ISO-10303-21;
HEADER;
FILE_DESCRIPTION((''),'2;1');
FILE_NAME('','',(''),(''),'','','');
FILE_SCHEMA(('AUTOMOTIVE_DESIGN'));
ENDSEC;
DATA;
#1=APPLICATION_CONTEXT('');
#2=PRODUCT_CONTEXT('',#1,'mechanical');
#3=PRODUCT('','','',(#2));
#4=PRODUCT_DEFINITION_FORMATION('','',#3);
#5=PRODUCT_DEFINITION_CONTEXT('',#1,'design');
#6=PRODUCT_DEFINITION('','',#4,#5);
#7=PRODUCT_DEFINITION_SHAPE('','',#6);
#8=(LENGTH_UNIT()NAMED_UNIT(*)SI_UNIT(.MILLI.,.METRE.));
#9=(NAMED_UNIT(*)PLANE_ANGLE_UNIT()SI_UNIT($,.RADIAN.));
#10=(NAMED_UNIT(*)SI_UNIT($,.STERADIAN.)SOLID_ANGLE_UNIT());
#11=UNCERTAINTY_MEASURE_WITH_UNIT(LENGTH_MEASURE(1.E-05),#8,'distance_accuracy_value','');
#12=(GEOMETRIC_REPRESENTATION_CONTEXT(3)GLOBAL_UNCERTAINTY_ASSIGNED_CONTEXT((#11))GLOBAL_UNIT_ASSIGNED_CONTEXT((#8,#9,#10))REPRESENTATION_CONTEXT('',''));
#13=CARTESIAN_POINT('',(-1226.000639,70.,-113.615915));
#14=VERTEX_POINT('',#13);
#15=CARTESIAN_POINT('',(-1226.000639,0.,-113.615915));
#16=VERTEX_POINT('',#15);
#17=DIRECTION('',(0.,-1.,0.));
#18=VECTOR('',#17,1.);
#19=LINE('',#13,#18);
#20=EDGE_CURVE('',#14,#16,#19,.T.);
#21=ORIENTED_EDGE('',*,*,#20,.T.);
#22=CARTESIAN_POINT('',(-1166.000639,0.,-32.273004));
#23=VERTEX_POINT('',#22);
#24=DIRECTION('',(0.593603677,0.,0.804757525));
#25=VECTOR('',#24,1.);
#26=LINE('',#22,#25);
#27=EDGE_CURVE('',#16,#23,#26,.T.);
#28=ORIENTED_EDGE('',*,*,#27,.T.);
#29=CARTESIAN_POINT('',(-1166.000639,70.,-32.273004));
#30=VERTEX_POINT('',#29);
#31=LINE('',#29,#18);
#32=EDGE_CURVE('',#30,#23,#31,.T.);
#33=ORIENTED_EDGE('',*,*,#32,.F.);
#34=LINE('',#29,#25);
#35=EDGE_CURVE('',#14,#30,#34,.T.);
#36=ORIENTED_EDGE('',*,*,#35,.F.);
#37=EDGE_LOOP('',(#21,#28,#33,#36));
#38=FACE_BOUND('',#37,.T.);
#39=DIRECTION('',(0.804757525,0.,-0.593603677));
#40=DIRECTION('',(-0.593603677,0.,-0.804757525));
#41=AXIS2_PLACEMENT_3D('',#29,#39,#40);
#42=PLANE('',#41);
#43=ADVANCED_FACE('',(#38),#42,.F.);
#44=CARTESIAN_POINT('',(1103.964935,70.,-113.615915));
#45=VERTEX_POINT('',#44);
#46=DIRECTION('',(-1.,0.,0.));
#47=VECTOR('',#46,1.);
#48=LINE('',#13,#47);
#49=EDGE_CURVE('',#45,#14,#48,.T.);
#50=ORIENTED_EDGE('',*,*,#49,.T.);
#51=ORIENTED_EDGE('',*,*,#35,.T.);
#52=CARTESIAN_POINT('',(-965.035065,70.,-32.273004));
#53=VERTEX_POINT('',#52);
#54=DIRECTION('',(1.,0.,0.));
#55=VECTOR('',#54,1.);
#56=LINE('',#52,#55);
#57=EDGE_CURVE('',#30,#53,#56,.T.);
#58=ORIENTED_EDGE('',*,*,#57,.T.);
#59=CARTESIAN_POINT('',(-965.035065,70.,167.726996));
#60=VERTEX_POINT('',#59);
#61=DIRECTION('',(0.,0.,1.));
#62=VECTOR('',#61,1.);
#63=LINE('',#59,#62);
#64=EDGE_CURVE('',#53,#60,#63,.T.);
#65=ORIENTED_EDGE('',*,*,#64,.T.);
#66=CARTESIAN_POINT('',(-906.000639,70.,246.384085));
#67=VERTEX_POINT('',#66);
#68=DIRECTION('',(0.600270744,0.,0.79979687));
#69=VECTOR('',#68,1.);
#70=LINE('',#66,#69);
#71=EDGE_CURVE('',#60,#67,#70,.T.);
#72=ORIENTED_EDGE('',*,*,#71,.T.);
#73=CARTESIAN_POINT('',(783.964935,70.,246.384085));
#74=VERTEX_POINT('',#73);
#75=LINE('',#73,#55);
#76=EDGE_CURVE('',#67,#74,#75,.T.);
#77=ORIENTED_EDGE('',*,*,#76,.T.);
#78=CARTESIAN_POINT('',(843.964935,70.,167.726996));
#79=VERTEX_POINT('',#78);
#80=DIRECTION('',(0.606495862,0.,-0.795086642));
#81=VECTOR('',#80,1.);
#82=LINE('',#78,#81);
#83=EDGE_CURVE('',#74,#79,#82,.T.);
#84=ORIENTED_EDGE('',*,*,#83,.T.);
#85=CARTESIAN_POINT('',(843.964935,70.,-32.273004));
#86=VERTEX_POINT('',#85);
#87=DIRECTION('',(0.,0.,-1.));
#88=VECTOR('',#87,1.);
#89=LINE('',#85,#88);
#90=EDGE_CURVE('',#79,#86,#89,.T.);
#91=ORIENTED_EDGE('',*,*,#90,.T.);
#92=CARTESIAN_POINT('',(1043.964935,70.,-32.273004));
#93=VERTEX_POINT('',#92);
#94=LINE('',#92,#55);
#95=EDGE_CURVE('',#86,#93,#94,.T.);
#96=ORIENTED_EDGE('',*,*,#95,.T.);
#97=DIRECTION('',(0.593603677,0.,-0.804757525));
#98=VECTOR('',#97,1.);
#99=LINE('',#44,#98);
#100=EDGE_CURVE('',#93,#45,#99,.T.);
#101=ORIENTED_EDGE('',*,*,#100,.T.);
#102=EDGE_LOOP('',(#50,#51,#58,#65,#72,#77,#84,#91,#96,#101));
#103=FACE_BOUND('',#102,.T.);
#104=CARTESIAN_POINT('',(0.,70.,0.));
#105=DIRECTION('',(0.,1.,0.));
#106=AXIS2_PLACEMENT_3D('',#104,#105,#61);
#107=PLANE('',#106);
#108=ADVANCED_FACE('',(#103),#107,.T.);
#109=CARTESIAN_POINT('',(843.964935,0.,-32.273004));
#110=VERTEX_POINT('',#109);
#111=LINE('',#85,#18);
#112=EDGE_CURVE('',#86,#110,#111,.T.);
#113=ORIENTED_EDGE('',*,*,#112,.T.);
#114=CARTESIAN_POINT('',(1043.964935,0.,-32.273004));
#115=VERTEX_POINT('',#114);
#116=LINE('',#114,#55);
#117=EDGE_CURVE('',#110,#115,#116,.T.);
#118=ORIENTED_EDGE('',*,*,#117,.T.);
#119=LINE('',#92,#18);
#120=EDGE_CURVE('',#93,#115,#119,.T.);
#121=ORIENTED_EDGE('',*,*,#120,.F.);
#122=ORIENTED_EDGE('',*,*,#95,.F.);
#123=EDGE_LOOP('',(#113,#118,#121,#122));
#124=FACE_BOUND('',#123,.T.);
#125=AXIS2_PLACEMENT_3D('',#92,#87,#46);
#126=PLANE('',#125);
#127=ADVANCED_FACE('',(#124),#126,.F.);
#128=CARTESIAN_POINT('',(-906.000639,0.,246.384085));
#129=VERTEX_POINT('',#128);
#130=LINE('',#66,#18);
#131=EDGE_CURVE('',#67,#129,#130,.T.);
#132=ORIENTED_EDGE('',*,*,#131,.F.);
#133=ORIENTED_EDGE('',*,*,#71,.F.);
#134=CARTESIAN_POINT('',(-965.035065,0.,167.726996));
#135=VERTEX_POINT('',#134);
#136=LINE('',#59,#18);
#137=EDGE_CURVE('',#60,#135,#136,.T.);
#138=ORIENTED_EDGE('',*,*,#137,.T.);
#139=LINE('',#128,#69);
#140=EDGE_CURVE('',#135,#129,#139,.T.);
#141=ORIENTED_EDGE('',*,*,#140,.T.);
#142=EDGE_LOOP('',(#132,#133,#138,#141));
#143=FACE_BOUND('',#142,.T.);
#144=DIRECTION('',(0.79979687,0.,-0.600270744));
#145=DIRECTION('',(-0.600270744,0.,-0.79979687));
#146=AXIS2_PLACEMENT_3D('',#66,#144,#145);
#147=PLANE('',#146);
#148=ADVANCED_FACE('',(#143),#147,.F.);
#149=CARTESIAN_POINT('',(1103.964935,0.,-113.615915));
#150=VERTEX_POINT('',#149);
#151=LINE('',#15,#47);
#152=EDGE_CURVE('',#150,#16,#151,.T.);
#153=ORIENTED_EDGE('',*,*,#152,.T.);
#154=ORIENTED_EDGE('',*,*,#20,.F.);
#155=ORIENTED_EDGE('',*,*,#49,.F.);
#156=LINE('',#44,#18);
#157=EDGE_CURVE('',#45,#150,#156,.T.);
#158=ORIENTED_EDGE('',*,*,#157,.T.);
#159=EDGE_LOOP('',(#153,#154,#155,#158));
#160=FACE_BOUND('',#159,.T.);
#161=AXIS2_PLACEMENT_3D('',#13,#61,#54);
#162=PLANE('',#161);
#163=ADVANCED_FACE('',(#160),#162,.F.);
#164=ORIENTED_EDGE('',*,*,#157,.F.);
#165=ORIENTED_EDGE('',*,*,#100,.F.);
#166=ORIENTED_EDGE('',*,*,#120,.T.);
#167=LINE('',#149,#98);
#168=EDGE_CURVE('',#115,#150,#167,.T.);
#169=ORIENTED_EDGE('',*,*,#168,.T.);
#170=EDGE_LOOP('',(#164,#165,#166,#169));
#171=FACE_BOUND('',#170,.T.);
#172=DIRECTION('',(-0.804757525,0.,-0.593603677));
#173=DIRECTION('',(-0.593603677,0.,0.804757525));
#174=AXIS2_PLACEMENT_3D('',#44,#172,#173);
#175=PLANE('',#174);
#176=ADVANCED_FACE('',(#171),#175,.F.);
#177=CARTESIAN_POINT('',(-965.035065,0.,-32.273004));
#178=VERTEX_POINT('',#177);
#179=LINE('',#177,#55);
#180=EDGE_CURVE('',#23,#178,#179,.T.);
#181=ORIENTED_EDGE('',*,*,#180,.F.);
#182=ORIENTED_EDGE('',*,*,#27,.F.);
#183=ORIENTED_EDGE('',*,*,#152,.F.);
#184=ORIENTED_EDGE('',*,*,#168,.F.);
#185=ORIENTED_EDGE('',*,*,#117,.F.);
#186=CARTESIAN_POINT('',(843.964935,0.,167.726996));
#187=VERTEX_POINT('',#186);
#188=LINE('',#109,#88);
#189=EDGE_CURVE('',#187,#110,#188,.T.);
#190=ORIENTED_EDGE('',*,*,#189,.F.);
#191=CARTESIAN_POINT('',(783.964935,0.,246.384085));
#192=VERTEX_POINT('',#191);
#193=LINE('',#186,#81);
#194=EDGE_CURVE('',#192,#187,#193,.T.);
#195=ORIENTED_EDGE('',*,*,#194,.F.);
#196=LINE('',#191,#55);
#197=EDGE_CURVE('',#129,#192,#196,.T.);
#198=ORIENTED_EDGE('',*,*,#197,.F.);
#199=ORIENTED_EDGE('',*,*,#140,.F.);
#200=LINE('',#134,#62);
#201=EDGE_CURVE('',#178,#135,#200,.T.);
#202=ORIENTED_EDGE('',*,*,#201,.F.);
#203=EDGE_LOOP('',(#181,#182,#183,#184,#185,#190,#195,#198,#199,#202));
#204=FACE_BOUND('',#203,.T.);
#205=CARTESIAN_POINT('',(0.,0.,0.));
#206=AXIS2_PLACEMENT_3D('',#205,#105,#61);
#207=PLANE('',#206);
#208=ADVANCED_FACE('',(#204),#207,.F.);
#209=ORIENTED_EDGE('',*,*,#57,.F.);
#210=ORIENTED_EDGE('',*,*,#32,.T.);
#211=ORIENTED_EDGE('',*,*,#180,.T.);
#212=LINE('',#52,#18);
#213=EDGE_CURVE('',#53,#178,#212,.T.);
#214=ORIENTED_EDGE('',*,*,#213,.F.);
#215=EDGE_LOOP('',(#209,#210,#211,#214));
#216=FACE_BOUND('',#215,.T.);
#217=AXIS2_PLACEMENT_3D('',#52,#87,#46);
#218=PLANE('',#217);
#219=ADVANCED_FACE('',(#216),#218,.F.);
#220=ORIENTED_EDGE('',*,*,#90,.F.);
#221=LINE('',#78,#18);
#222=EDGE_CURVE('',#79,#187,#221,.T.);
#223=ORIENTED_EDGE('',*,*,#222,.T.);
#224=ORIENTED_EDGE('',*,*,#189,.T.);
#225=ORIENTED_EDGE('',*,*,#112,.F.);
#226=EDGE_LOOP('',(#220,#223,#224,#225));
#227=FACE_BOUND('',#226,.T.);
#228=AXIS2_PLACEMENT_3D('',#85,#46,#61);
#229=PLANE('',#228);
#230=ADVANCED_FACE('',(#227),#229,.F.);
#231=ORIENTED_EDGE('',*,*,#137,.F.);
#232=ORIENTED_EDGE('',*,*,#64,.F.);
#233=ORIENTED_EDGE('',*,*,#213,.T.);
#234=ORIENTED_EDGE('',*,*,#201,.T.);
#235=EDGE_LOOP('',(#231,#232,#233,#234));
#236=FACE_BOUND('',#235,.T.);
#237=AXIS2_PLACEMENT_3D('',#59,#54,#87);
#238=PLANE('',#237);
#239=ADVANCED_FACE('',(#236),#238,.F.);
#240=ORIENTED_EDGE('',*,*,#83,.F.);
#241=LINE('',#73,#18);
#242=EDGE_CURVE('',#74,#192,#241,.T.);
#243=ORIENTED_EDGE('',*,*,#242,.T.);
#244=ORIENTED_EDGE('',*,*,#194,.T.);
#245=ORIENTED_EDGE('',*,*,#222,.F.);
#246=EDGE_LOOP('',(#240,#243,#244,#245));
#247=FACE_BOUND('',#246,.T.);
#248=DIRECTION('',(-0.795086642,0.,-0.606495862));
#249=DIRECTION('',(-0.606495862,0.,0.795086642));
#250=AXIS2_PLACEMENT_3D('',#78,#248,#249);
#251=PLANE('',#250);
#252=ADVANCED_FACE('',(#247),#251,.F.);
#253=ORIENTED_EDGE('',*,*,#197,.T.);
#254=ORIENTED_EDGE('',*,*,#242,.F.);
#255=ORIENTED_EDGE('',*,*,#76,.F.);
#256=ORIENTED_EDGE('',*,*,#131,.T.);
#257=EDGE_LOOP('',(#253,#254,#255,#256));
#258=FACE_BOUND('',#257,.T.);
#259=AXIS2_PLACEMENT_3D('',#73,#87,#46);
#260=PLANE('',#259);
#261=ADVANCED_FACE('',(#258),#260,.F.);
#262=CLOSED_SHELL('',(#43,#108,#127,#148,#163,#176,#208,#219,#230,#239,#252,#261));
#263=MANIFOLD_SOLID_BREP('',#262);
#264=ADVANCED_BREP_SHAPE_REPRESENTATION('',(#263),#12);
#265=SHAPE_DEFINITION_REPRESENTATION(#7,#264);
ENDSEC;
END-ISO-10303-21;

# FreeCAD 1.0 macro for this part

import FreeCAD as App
import Part
import Sketcher
Q = App.Units.Quantity

doc = App.newDocument("Part")
body = doc.addObject("PartDesign::Body", "Body")

# Sketch on XZ plane
sketch1 = body.newObject("Sketcher::SketchObject", "Sketch")
sketch1.AttachmentSupport = (doc.getObject("XZ_Plane"), [""])
sketch1.MapMode = "FlatFace"
sketch1.addGeometry(Part.LineSegment(App.Vector(1104, -114, 0), App.Vector(-1226, -114, 0)), False)
sketch1.addGeometry(Part.LineSegment(App.Vector(-1226, -114, 0), App.Vector(-1166, -32, 0)), False)
sketch1.addGeometry(Part.LineSegment(App.Vector(-1166, -32, 0), App.Vector(-965, -32, 0)), False)
sketch1.addGeometry(Part.LineSegment(App.Vector(-965, -32, 0), App.Vector(-965, 168, 0)), False)
sketch1.addGeometry(Part.LineSegment(App.Vector(-965, 168, 0), App.Vector(-906, 246, 0)), False)
sketch1.addGeometry(Part.LineSegment(App.Vector(-906, 246, 0), App.Vector(784, 246, 0)), False)
sketch1.addGeometry(Part.LineSegment(App.Vector(784, 246, 0), App.Vector(844, 168, 0)), False)
sketch1.addGeometry(Part.LineSegment(App.Vector(844, 168, 0), App.Vector(844, -32, 0)), False)
sketch1.addGeometry(Part.LineSegment(App.Vector(844, -32, 0), App.Vector(1044, -32, 0)), False)
sketch1.addGeometry(Part.LineSegment(App.Vector(1044, -32, 0), App.Vector(1104, -114, 0)), False)
sketch1.addConstraint(Sketcher.Constraint("Coincident", 0, 2, 1, 1))
sketch1.addConstraint(Sketcher.Constraint("Coincident", 1, 2, 2, 1))
sketch1.addConstraint(Sketcher.Constraint("Coincident", 2, 2, 3, 1))
sketch1.addConstraint(Sketcher.Constraint("Coincident", 3, 2, 4, 1))
sketch1.addConstraint(Sketcher.Constraint("Coincident", 4, 2, 5, 1))
sketch1.addConstraint(Sketcher.Constraint("Coincident", 5, 2, 6, 1))
sketch1.addConstraint(Sketcher.Constraint("Coincident", 6, 2, 7, 1))
sketch1.addConstraint(Sketcher.Constraint("Coincident", 7, 2, 8, 1))
sketch1.addConstraint(Sketcher.Constraint("Coincident", 8, 2, 9, 1))
sketch1.addConstraint(Sketcher.Constraint("Coincident", 9, 2, 0, 1))
sketch1.addConstraint(Sketcher.Constraint("Horizontal", 0))
sketch1.addConstraint(Sketcher.Constraint("Horizontal", 2))
sketch1.addConstraint(Sketcher.Constraint("Vertical", 3))
sketch1.addConstraint(Sketcher.Constraint("Horizontal", 5))
sketch1.addConstraint(Sketcher.Constraint("Vertical", 7))
sketch1.addConstraint(Sketcher.Constraint("Horizontal", 8))
sketch1.addConstraint(Sketcher.Constraint("Horizontal", 3, 2, 6, 2))
sketch1.addConstraint(Sketcher.Constraint("Horizontal", 2, 2, 7, 2))
sketch1.addConstraint(Sketcher.Constraint("Equal", 8, 3))
sketch1.addConstraint(Sketcher.Constraint("Equal", 1, 9))
sketch1.addConstraint(Sketcher.Constraint("DistanceX", 8, 1, 8, 2, Q("200 mm")))
sketch1.addConstraint(Sketcher.Constraint("DistanceX", 0, 2, 1, 2, Q("60 mm")))
sketch1.addConstraint(Sketcher.Constraint("DistanceX", 1, 2, 4, 2, Q("260 mm")))
sketch1.addConstraint(Sketcher.Constraint("DistanceY", 0, 2, 4, 2, Q("360 mm")))
sketch1.addConstraint(Sketcher.Constraint("DistanceX", 3, 2, 5, 2, Q("1749 mm")))
sketch1.addConstraint(Sketcher.Constraint("DistanceX", 5, 2, 6, 2, Q("60 mm")))
sketch1.addConstraint(Sketcher.Constraint("Distance", 1, Q("101.077541 mm")))
sketch1.addConstraint(Sketcher.Constraint("Distance", 4, Q("98.346332 mm")))
sketch1.addConstraint(Sketcher.Constraint("DistanceX", 0, 2, -1, 1, Q("1226.000639 mm")))
sketch1.addConstraint(Sketcher.Constraint("DistanceY", 0, 2, -1, 1, Q("113.615915 mm")))
pad1 = body.newObject("PartDesign::Pad", "Pad")
pad1.Profile = sketch1
pad1.Length = 70
pad1.Reversed = True

doc.recompute()
